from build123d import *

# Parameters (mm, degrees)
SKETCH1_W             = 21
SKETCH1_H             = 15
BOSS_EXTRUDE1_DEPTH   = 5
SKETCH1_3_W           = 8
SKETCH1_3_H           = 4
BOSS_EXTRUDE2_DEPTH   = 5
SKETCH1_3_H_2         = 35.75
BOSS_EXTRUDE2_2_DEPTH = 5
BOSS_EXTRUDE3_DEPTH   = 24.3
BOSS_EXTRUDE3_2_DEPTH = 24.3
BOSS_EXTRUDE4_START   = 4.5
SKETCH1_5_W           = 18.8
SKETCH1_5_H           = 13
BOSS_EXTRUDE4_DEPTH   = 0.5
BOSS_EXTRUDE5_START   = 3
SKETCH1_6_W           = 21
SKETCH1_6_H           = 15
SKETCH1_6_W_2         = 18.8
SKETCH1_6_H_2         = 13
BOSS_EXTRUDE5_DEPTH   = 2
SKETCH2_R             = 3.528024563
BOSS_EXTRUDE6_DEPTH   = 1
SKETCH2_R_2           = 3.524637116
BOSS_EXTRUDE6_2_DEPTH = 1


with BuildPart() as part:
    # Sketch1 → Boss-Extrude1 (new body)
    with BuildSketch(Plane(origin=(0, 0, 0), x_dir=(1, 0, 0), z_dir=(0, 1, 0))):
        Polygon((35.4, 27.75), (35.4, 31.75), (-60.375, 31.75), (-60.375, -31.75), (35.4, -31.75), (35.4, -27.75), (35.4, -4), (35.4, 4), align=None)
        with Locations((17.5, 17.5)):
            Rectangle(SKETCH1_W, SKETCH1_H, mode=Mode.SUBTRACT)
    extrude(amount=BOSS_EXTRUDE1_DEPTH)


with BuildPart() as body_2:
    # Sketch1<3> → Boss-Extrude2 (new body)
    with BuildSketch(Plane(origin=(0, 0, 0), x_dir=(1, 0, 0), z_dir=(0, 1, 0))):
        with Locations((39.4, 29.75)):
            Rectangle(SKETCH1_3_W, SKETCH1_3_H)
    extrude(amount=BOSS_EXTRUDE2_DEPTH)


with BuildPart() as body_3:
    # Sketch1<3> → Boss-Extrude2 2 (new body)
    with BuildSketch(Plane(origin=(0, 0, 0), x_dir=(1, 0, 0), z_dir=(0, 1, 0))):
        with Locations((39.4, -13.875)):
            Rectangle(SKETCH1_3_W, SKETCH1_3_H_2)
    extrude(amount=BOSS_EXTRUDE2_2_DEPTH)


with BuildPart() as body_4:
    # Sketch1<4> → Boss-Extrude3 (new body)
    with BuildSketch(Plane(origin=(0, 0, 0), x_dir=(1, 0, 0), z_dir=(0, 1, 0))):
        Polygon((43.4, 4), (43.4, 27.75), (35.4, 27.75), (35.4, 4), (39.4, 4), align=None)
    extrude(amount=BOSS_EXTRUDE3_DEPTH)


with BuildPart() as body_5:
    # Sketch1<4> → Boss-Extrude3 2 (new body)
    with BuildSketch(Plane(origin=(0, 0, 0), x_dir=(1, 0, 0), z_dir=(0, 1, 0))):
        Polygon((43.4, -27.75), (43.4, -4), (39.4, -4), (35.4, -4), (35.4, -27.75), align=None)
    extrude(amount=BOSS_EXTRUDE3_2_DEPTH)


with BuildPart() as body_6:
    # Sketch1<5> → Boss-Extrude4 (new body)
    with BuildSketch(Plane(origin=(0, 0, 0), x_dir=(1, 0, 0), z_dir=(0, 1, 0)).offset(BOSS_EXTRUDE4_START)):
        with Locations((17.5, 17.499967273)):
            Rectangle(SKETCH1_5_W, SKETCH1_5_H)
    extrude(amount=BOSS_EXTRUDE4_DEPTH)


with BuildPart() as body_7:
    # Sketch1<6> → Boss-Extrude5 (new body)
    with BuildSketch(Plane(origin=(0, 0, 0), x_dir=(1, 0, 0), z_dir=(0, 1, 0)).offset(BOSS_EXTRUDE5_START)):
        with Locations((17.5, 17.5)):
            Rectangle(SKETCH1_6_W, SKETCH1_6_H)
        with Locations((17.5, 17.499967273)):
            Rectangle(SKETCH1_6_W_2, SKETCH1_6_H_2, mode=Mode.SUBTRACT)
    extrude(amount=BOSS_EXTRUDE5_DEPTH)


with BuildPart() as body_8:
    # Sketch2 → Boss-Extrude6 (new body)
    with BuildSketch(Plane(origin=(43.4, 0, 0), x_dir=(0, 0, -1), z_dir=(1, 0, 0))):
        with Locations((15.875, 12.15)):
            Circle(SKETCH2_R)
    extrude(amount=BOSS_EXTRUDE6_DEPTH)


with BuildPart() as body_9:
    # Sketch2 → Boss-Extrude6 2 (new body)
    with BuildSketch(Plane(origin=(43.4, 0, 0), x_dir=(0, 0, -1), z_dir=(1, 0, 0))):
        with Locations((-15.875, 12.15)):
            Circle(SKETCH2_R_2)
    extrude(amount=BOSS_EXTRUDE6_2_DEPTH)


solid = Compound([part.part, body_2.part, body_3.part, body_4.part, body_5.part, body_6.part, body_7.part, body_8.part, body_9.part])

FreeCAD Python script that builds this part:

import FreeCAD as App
import Part
import Sketcher
Q = App.Units.Quantity

doc = App.newDocument("Part")
body = doc.addObject("PartDesign::Body", "Body")

# Sketch on XZ plane
sketch1 = body.newObject("Sketcher::SketchObject", "Sketch")
sketch1.AttachmentSupport = (doc.getObject("XZ_Plane"), [""])
sketch1.MapMode = "FlatFace"
sketch1.addGeometry(Part.LineSegment(App.Vector(35, -32, 0), App.Vector(-60, -32, 0)), False)
sketch1.addGeometry(Part.LineSegment(App.Vector(-60, -32, 0), App.Vector(-60, 32, 0)), False)
sketch1.addGeometry(Part.LineSegment(App.Vector(-60, 32, 0), App.Vector(35, 32, 0)), False)
sketch1.addGeometry(Part.LineSegment(App.Vector(35, 32, 0), App.Vector(35, -32, 0)), False)
sketch1.addGeometry(Part.LineSegment(App.Vector(28, -10, 0), App.Vector(7, -10, 0)), False)
sketch1.addGeometry(Part.LineSegment(App.Vector(7, -10, 0), App.Vector(7, -25, 0)), False)
sketch1.addGeometry(Part.LineSegment(App.Vector(7, -25, 0), App.Vector(28, -25, 0)), False)
sketch1.addGeometry(Part.LineSegment(App.Vector(28, -25, 0), App.Vector(28, -10, 0)), False)
sketch1.addConstraint(Sketcher.Constraint("Coincident", 0, 2, 1, 1))
sketch1.addConstraint(Sketcher.Constraint("Coincident", 1, 2, 2, 1))
sketch1.addConstraint(Sketcher.Constraint("Coincident", 2, 2, 3, 1))
sketch1.addConstraint(Sketcher.Constraint("Coincident", 3, 2, 0, 1))
sketch1.addConstraint(Sketcher.Constraint("Coincident", 4, 2, 5, 1))
sketch1.addConstraint(Sketcher.Constraint("Coincident", 5, 2, 6, 1))
sketch1.addConstraint(Sketcher.Constraint("Coincident", 6, 2, 7, 1))
sketch1.addConstraint(Sketcher.Constraint("Coincident", 7, 2, 4, 1))
sketch1.addConstraint(Sketcher.Constraint("Horizontal", 0))
sketch1.addConstraint(Sketcher.Constraint("Vertical", 1))
sketch1.addConstraint(Sketcher.Constraint("Horizontal", 2))
sketch1.addConstraint(Sketcher.Constraint("Vertical", 3))
sketch1.addConstraint(Sketcher.Constraint("Horizontal", 4))
sketch1.addConstraint(Sketcher.Constraint("Vertical", 5))
sketch1.addConstraint(Sketcher.Constraint("Horizontal", 6))
sketch1.addConstraint(Sketcher.Constraint("Vertical", 7))
sketch1.addConstraint(Sketcher.Constraint("DistanceX", 4, 2, 4, 1, Q("21 mm")))
sketch1.addConstraint(Sketcher.Constraint("DistanceY", 5, 2, 5, 1, Q("15 mm")))
sketch1.addConstraint(Sketcher.Constraint("DistanceY", 1, 1, 1, 2, Q("63.5 mm")))
sketch1.addConstraint(Sketcher.Constraint("DistanceX", -1, 1, 4, 2, Q("7 mm")))
sketch1.addConstraint(Sketcher.Constraint("DistanceY", 4, 2, -1, 1, Q("10 mm")))
sketch1.addConstraint(Sketcher.Constraint("DistanceX", -1, 1, 2, 2, Q("35.4 mm")))
sketch1.addConstraint(Sketcher.Constraint("DistanceX", 0, 2, 0, 1, Q("95.775 mm")))
sketch1.addConstraint(Sketcher.Constraint("DistanceY", 0, 2, -1, 1, Q("31.75 mm")))
pad1 = body.newObject("PartDesign::Pad", "Pad")
pad1.Profile = sketch1
pad1.Length = 5
pad1.Reversed = True
body2 = doc.addObject("PartDesign::Body", "Body001")

# Sketch on XZ plane
sketch2 = body2.newObject("Sketcher::SketchObject", "Sketch001")
sketch2.AttachmentSupport = (doc.getObject("XZ_Plane001"), [""])
sketch2.MapMode = "FlatFace"
sketch2.addGeometry(Part.LineSegment(App.Vector(35.4, -31.8, 0), App.Vector(35.4, -27.8, 0)), False)
sketch2.addGeometry(Part.LineSegment(App.Vector(35.4, -27.8, 0), App.Vector(43.4, -27.8, 0)), False)
sketch2.addGeometry(Part.LineSegment(App.Vector(43.4, -27.8, 0), App.Vector(43.4, -31.8, 0)), False)
sketch2.addGeometry(Part.LineSegment(App.Vector(43.4, -31.8, 0), App.Vector(35.4, -31.8, 0)), False)
sketch2.addConstraint(Sketcher.Constraint("Coincident", 0, 2, 1, 1))
sketch2.addConstraint(Sketcher.Constraint("Coincident", 1, 2, 2, 1))
sketch2.addConstraint(Sketcher.Constraint("Coincident", 2, 2, 3, 1))
sketch2.addConstraint(Sketcher.Constraint("Coincident", 3, 2, 0, 1))
sketch2.addConstraint(Sketcher.Constraint("Vertical", 0))
sketch2.addConstraint(Sketcher.Constraint("Horizontal", 1))
sketch2.addConstraint(Sketcher.Constraint("Vertical", 2))
sketch2.addConstraint(Sketcher.Constraint("Horizontal", 3))
sketch2.addConstraint(Sketcher.Constraint("DistanceX", 1, 1, 1, 2, Q("8 mm")))
sketch2.addConstraint(Sketcher.Constraint("DistanceY", 0, 1, 0, 2, Q("4 mm")))
sketch2.addConstraint(Sketcher.Constraint("DistanceX", -1, 1, 0, 2, Q("35.4 mm")))
sketch2.addConstraint(Sketcher.Constraint("DistanceY", 0, 2, -1, 1, Q("27.75 mm")))
pad2 = body2.newObject("PartDesign::Pad", "Pad001")
pad2.Profile = sketch2
pad2.Length = 5
pad2.Reversed = True
body3 = doc.addObject("PartDesign::Body", "Body002")

# Sketch on XZ plane
sketch3 = body3.newObject("Sketcher::SketchObject", "Sketch002")
sketch3.AttachmentSupport = (doc.getObject("XZ_Plane002"), [""])
sketch3.MapMode = "FlatFace"
sketch3.addGeometry(Part.LineSegment(App.Vector(35, -4, 0), App.Vector(35, 32, 0)), False)
sketch3.addGeometry(Part.LineSegment(App.Vector(35, 32, 0), App.Vector(43, 32, 0)), False)
sketch3.addGeometry(Part.LineSegment(App.Vector(43, 32, 0), App.Vector(43, -4, 0)), False)
sketch3.addGeometry(Part.LineSegment(App.Vector(43, -4, 0), App.Vector(35, -4, 0)), False)
sketch3.addConstraint(Sketcher.Constraint("Coincident", 0, 2, 1, 1))
sketch3.addConstraint(Sketcher.Constraint("Coincident", 1, 2, 2, 1))
sketch3.addConstraint(Sketcher.Constraint("Coincident", 2, 2, 3, 1))
sketch3.addConstraint(Sketcher.Constraint("Coincident", 3, 2, 0, 1))
sketch3.addConstraint(Sketcher.Constraint("Vertical", 0))
sketch3.addConstraint(Sketcher.Constraint("Horizontal", 1))
sketch3.addConstraint(Sketcher.Constraint("Vertical", 2))
sketch3.addConstraint(Sketcher.Constraint("Horizontal", 3))
sketch3.addConstraint(Sketcher.Constraint("DistanceX", 1, 1, 1, 2, Q("8 mm")))
sketch3.addConstraint(Sketcher.Constraint("DistanceY", 2, 2, -1, 1, Q("4 mm")))
sketch3.addConstraint(Sketcher.Constraint("DistanceY", 0, 1, 0, 2, Q("35.75 mm")))
sketch3.addConstraint(Sketcher.Constraint("DistanceX", -1, 1, 0, 2, Q("35.4 mm")))
pad3 = body3.newObject("PartDesign::Pad", "Pad002")
pad3.Profile = sketch3
pad3.Length = 5
pad3.Reversed = True
body4 = doc.addObject("PartDesign::Body", "Body003")

# Sketch on XZ plane
sketch4 = body4.newObject("Sketcher::SketchObject", "Sketch003")
sketch4.AttachmentSupport = (doc.getObject("XZ_Plane003"), [""])
sketch4.MapMode = "FlatFace"
sketch4.addGeometry(Part.LineSegment(App.Vector(43, -4, 0), App.Vector(43, -28, 0)), False)
sketch4.addGeometry(Part.LineSegment(App.Vector(43, -28, 0), App.Vector(35, -28, 0)), False)
sketch4.addGeometry(Part.LineSegment(App.Vector(35, -28, 0), App.Vector(35, -4, 0)), False)
sketch4.addGeometry(Part.LineSegment(App.Vector(35, -4, 0), App.Vector(43, -4, 0)), False)
sketch4.addConstraint(Sketcher.Constraint("Coincident", 0, 2, 1, 1))
sketch4.addConstraint(Sketcher.Constraint("Coincident", 1, 2, 2, 1))
sketch4.addConstraint(Sketcher.Constraint("Coincident", 2, 2, 3, 1))
sketch4.addConstraint(Sketcher.Constraint("Coincident", 3, 2, 0, 1))
sketch4.addConstraint(Sketcher.Constraint("Vertical", 0))
sketch4.addConstraint(Sketcher.Constraint("Horizontal", 1))
sketch4.addConstraint(Sketcher.Constraint("Vertical", 2))
sketch4.addConstraint(Sketcher.Constraint("Horizontal", 3))
sketch4.addConstraint(Sketcher.Constraint("DistanceX", 1, 2, 1, 1, Q("8 mm")))
sketch4.addConstraint(Sketcher.Constraint("DistanceY", 2, 2, -1, 1, Q("4 mm")))
sketch4.addConstraint(Sketcher.Constraint("DistanceY", 0, 2, 0, 1, Q("23.75 mm")))
sketch4.addConstraint(Sketcher.Constraint("DistanceX", -1, 1, 0, 2, Q("43.4 mm")))
pad4 = body4.newObject("PartDesign::Pad", "Pad003")
pad4.Profile = sketch4
pad4.Length = 24.3
pad4.Reversed = True
body5 = doc.addObject("PartDesign::Body", "Body004")

# Sketch on XZ plane
sketch5 = body5.newObject("Sketcher::SketchObject", "Sketch004")
sketch5.AttachmentSupport = (doc.getObject("XZ_Plane004"), [""])
sketch5.MapMode = "FlatFace"
sketch5.addGeometry(Part.LineSegment(App.Vector(43, 28, 0), App.Vector(43, 4, 0)), False)
sketch5.addGeometry(Part.LineSegment(App.Vector(43, 4, 0), App.Vector(35, 4, 0)), False)
sketch5.addGeometry(Part.LineSegment(App.Vector(35, 4, 0), App.Vector(35, 28, 0)), False)
sketch5.addGeometry(Part.LineSegment(App.Vector(35, 28, 0), App.Vector(43, 28, 0)), False)
sketch5.addConstraint(Sketcher.Constraint("Coincident", 0, 2, 1, 1))
sketch5.addConstraint(Sketcher.Constraint("Coincident", 1, 2, 2, 1))
sketch5.addConstraint(Sketcher.Constraint("Coincident", 2, 2, 3, 1))
sketch5.addConstraint(Sketcher.Constraint("Coincident", 3, 2, 0, 1))
sketch5.addConstraint(Sketcher.Constraint("Vertical", 0))
sketch5.addConstraint(Sketcher.Constraint("Horizontal", 1))
sketch5.addConstraint(Sketcher.Constraint("Vertical", 2))
sketch5.addConstraint(Sketcher.Constraint("Horizontal", 3))
sketch5.addConstraint(Sketcher.Constraint("DistanceX", 1, 2, 1, 1, Q("8 mm")))
sketch5.addConstraint(Sketcher.Constraint("DistanceY", -1, 1, 0, 2, Q("4 mm")))
sketch5.addConstraint(Sketcher.Constraint("DistanceY", 0, 2, 0, 1, Q("23.75 mm")))
sketch5.addConstraint(Sketcher.Constraint("DistanceX", -1, 1, 0, 2, Q("43.4 mm")))
pad5 = body5.newObject("PartDesign::Pad", "Pad004")
pad5.Profile = sketch5
pad5.Length = 24.3
pad5.Reversed = True
body6 = doc.addObject("PartDesign::Body", "Body005")

# Sketch on XZ plane
sketch6 = body6.newObject("Sketcher::SketchObject", "Sketch005")
sketch6.AttachmentSupport = (doc.getObject("XZ_Plane005"), [""])
sketch6.MapMode = "FlatFace"
sketch6.AttachmentOffset = App.Placement(App.Vector(0, 0, -4.5), App.Rotation())
sketch6.addGeometry(Part.LineSegment(App.Vector(8.1, -23.999967, 0), App.Vector(8.1, -10.999967, 0)), False)
sketch6.addGeometry(Part.LineSegment(App.Vector(8.1, -10.999967, 0), App.Vector(26.9, -10.999967, 0)), False)
sketch6.addGeometry(Part.LineSegment(App.Vector(26.9, -10.999967, 0), App.Vector(26.9, -23.999967, 0)), False)
sketch6.addGeometry(Part.LineSegment(App.Vector(26.9, -23.999967, 0), App.Vector(8.1, -23.999967, 0)), False)
sketch6.addConstraint(Sketcher.Constraint("Coincident", 0, 2, 1, 1))
sketch6.addConstraint(Sketcher.Constraint("Coincident", 1, 2, 2, 1))
sketch6.addConstraint(Sketcher.Constraint("Coincident", 2, 2, 3, 1))
sketch6.addConstraint(Sketcher.Constraint("Coincident", 3, 2, 0, 1))
sketch6.addConstraint(Sketcher.Constraint("Vertical", 0))
sketch6.addConstraint(Sketcher.Constraint("Horizontal", 1))
sketch6.addConstraint(Sketcher.Constraint("Vertical", 2))
sketch6.addConstraint(Sketcher.Constraint("Horizontal", 3))
sketch6.addConstraint(Sketcher.Constraint("DistanceY", 0, 1, 0, 2, Q("13 mm")))
sketch6.addConstraint(Sketcher.Constraint("DistanceX", 1, 1, 1, 2, Q("18.8 mm")))
sketch6.addConstraint(Sketcher.Constraint("DistanceX", -1, 1, 0, 2, Q("8.1 mm")))
sketch6.addConstraint(Sketcher.Constraint("DistanceY", 0, 2, -1, 1, Q("10.999967 mm")))
pad6 = body6.newObject("PartDesign::Pad", "Pad005")
pad6.Profile = sketch6
pad6.Length = 0.5
pad6.Reversed = True
body7 = doc.addObject("PartDesign::Body", "Body006")

# Sketch on XZ plane
sketch7 = body7.newObject("Sketcher::SketchObject", "Sketch006")
sketch7.AttachmentSupport = (doc.getObject("XZ_Plane006"), [""])
sketch7.MapMode = "FlatFace"
sketch7.AttachmentOffset = App.Placement(App.Vector(0, 0, -3), App.Rotation())
sketch7.addGeometry(Part.LineSegment(App.Vector(7, -25, 0), App.Vector(7, -10, 0)), False)
sketch7.addGeometry(Part.LineSegment(App.Vector(7, -10, 0), App.Vector(28, -10, 0)), False)
sketch7.addGeometry(Part.LineSegment(App.Vector(28, -10, 0), App.Vector(28, -25, 0)), False)
sketch7.addGeometry(Part.LineSegment(App.Vector(28, -25, 0), App.Vector(7, -25, 0)), False)
sketch7.addGeometry(Part.LineSegment(App.Vector(26.9, -10.999967, 0), App.Vector(8.1, -10.999967, 0)), False)
sketch7.addGeometry(Part.LineSegment(App.Vector(8.1, -10.999967, 0), App.Vector(8.1, -23.999967, 0)), False)
sketch7.addGeometry(Part.LineSegment(App.Vector(8.1, -23.999967, 0), App.Vector(26.9, -23.999967, 0)), False)
sketch7.addGeometry(Part.LineSegment(App.Vector(26.9, -23.999967, 0), App.Vector(26.9, -10.999967, 0)), False)
sketch7.addConstraint(Sketcher.Constraint("Coincident", 0, 2, 1, 1))
sketch7.addConstraint(Sketcher.Constraint("Coincident", 1, 2, 2, 1))
sketch7.addConstraint(Sketcher.Constraint("Coincident", 2, 2, 3, 1))
sketch7.addConstraint(Sketcher.Constraint("Coincident", 3, 2, 0, 1))
sketch7.addConstraint(Sketcher.Constraint("Coincident", 4, 2, 5, 1))
sketch7.addConstraint(Sketcher.Constraint("Coincident", 5, 2, 6, 1))
sketch7.addConstraint(Sketcher.Constraint("Coincident", 6, 2, 7, 1))
sketch7.addConstraint(Sketcher.Constraint("Coincident", 7, 2, 4, 1))
sketch7.addConstraint(Sketcher.Constraint("Vertical", 0))
sketch7.addConstraint(Sketcher.Constraint("Horizontal", 1))
sketch7.addConstraint(Sketcher.Constraint("Vertical", 2))
sketch7.addConstraint(Sketcher.Constraint("Horizontal", 3))
sketch7.addConstraint(Sketcher.Constraint("Horizontal", 4))
sketch7.addConstraint(Sketcher.Constraint("Vertical", 5))
sketch7.addConstraint(Sketcher.Constraint("Horizontal", 6))
sketch7.addConstraint(Sketcher.Constraint("Vertical", 7))
sketch7.addConstraint(Sketcher.Constraint("DistanceX", 1, 1, 1, 2, Q("21 mm")))
sketch7.addConstraint(Sketcher.Constraint("DistanceY", 0, 1, 0, 2, Q("15 mm")))
sketch7.addConstraint(Sketcher.Constraint("DistanceY", 5, 2, 5, 1, Q("13 mm")))
sketch7.addConstraint(Sketcher.Constraint("DistanceX", 4, 2, 4, 1, Q("18.8 mm")))
sketch7.addConstraint(Sketcher.Constraint("DistanceX", -1, 1, 0, 2, Q("7 mm")))
sketch7.addConstraint(Sketcher.Constraint("DistanceY", 0, 2, -1, 1, Q("10 mm")))
sketch7.addConstraint(Sketcher.Constraint("DistanceX", -1, 1, 4, 2, Q("8.1 mm")))
sketch7.addConstraint(Sketcher.Constraint("DistanceY", 4, 2, -1, 1, Q("10.999967 mm")))
pad7 = body7.newObject("PartDesign::Pad", "Pad006")
pad7.Profile = sketch7
pad7.Length = 2
pad7.Reversed = True
body8 = doc.addObject("PartDesign::Body", "Body007")

# Sketch on YZ plane
sketch8 = body8.newObject("Sketcher::SketchObject", "Sketch007")
sketch8.AttachmentSupport = (doc.getObject("YZ_Plane007"), [""])
sketch8.MapMode = "FlatFace"
sketch8.AttachmentOffset = App.Placement(App.Vector(0, 0, 43.4), App.Rotation())
sketch8.addGeometry(Part.Circle(App.Vector(12.2, -15.9, 0), App.Vector(0, 0, 1), 3.5), False)
sketch8.addConstraint(Sketcher.Constraint("Diameter", 0, Q("7.056049 mm")))
sketch8.addConstraint(Sketcher.Constraint("DistanceX", -1, 1, 0, 3, Q("12.15 mm")))
sketch8.addConstraint(Sketcher.Constraint("DistanceY", 0, 3, -1, 1, Q("15.875 mm")))
pad8 = body8.newObject("PartDesign::Pad", "Pad007")
pad8.Profile = sketch8
pad8.Length = 1
body9 = doc.addObject("PartDesign::Body", "Body008")

# Sketch on YZ plane
sketch9 = body9.newObject("Sketcher::SketchObject", "Sketch008")
sketch9.AttachmentSupport = (doc.getObject("YZ_Plane008"), [""])
sketch9.MapMode = "FlatFace"
sketch9.AttachmentOffset = App.Placement(App.Vector(0, 0, 43.4), App.Rotation())
sketch9.addGeometry(Part.Circle(App.Vector(12.2, 15.9, 0), App.Vector(0, 0, 1), 3.5), False)
sketch9.addConstraint(Sketcher.Constraint("DistanceX", -1, 1, 0, 3, Q("12.15 mm")))
sketch9.addConstraint(Sketcher.Constraint("Diameter", 0, Q("7.049274 mm")))
sketch9.addConstraint(Sketcher.Constraint("DistanceY", -1, 1, 0, 3, Q("15.875 mm")))
pad9 = body9.newObject("PartDesign::Pad", "Pad008")
pad9.Profile = sketch9
pad9.Length = 1

doc.recompute()
